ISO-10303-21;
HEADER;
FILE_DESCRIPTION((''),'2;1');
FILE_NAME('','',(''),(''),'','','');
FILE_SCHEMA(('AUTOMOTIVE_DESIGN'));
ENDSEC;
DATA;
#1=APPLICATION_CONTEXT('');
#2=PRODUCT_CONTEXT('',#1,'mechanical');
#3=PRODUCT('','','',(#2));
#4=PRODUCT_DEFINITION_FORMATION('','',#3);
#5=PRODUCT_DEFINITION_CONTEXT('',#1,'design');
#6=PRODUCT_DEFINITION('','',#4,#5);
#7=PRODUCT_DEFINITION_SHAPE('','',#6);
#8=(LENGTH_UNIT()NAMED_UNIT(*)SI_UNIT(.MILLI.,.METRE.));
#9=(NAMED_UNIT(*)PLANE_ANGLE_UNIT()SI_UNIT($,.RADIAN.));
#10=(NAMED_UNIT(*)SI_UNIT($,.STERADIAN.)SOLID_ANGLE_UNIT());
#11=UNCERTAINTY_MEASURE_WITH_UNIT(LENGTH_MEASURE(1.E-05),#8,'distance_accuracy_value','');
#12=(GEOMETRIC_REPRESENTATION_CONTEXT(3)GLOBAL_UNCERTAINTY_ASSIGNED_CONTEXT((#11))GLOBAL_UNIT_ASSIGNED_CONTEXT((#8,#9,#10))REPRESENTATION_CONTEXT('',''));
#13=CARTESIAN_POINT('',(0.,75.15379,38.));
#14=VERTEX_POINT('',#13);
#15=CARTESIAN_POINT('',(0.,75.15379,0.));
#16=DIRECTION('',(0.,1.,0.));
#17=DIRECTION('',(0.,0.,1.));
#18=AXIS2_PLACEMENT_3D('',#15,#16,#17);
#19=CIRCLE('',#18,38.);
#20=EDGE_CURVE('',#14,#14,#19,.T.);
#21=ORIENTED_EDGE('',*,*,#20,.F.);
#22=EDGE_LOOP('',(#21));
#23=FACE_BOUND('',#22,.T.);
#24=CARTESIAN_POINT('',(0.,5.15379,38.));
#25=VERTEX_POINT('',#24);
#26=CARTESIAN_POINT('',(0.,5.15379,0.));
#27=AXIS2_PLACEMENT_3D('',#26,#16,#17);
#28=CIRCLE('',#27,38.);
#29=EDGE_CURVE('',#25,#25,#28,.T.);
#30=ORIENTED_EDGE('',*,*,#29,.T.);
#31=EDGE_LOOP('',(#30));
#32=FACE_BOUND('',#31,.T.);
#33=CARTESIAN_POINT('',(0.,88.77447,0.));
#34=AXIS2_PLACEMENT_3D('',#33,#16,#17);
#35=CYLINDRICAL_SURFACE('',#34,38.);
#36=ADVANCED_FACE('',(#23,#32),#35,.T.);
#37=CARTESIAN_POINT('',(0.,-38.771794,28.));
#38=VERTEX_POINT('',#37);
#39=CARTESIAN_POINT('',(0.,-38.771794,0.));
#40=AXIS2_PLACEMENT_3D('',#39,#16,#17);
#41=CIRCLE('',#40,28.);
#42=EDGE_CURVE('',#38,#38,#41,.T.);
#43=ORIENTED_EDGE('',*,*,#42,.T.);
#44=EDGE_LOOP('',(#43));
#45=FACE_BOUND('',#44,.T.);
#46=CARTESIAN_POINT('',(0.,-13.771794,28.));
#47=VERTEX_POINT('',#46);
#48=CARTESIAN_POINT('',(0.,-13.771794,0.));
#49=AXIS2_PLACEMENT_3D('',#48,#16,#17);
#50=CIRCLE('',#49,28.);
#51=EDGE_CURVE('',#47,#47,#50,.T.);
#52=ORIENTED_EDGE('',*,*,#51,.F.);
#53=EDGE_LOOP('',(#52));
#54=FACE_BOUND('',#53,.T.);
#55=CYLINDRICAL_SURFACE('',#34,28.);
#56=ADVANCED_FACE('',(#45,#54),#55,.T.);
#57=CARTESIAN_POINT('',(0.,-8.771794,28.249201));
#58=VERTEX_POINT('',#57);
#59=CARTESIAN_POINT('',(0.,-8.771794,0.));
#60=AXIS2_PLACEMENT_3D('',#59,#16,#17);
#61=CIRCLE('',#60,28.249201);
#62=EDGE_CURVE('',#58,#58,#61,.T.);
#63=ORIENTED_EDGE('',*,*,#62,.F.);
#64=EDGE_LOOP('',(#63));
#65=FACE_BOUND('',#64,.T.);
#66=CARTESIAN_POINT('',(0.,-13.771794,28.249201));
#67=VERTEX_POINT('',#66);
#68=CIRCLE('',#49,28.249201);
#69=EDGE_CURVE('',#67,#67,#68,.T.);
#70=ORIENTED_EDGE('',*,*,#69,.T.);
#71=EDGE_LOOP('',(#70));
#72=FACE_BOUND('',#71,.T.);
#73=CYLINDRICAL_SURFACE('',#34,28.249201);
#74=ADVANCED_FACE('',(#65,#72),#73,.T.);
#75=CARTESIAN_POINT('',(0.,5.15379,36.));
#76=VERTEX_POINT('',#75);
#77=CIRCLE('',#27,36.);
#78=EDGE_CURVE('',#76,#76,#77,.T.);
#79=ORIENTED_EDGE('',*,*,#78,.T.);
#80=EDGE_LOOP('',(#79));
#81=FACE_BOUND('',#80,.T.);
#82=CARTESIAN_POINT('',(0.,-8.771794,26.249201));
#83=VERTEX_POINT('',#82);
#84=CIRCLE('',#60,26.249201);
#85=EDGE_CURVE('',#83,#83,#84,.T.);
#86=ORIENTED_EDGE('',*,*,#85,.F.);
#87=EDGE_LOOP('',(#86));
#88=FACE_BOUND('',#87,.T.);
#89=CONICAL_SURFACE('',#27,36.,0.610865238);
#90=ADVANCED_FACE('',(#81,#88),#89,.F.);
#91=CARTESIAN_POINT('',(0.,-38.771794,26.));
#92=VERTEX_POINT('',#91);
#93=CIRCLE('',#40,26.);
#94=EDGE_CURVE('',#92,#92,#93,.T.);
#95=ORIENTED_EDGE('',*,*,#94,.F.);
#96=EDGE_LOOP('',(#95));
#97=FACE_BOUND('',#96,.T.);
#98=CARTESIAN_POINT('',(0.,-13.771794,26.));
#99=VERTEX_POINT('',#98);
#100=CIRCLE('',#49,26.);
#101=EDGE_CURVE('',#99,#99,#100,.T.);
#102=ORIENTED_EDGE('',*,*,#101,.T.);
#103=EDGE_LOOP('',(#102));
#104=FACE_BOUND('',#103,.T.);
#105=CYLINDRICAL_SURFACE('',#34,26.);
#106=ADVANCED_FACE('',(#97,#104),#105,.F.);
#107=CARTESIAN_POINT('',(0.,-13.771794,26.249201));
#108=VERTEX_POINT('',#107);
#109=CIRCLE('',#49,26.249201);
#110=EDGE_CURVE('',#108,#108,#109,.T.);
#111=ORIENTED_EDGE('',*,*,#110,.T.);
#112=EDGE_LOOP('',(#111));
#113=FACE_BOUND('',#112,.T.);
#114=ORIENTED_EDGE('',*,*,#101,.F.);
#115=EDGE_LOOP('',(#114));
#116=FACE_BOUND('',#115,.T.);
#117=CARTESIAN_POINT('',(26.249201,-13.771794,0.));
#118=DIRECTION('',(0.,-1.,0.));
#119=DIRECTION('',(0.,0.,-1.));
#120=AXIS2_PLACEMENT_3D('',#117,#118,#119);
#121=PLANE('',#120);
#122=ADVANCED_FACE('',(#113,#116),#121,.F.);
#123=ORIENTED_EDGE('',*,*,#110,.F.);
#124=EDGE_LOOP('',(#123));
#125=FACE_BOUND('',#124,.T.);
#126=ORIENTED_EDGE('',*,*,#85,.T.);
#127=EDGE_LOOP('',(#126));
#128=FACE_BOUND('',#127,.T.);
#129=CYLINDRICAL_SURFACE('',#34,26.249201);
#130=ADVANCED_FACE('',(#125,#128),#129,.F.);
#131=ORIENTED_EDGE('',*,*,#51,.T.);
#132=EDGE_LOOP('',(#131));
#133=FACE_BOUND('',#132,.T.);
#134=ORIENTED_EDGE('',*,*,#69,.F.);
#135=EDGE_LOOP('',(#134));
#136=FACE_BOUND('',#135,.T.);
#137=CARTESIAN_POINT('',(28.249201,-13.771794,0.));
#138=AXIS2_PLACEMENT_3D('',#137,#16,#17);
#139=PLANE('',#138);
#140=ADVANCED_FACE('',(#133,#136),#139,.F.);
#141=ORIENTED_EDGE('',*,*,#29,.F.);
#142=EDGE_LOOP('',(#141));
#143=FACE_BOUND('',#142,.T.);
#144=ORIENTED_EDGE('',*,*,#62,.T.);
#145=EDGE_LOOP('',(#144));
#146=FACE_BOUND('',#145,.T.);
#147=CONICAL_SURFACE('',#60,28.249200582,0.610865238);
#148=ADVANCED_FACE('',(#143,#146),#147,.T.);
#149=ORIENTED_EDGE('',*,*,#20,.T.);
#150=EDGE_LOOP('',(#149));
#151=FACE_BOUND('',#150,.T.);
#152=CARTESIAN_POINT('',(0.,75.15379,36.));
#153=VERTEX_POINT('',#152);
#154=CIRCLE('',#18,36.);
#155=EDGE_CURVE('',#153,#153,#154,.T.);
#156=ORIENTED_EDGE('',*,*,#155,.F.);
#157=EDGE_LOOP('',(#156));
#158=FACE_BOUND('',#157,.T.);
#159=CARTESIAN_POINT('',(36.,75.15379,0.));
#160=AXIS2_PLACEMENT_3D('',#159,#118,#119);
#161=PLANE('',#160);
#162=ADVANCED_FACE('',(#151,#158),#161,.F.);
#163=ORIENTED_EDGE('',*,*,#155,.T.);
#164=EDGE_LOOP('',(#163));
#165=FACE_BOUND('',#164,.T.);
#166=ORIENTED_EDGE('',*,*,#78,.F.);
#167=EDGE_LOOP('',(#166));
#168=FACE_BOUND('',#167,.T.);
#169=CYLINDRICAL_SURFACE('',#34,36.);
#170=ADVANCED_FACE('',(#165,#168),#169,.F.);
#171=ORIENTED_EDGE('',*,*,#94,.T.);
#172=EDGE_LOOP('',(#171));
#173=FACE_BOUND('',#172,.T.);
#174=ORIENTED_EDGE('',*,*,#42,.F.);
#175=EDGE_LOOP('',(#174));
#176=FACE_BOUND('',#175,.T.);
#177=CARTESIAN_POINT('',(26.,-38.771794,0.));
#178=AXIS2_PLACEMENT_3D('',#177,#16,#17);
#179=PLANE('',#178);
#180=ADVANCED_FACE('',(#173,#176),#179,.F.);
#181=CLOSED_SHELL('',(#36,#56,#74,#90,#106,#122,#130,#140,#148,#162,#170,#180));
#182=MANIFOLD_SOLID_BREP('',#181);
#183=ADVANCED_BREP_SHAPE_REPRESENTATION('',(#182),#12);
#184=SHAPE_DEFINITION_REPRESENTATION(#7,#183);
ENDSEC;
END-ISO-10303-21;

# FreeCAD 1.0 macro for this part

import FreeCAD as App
import Part
import Sketcher

V = App.Vector
Q = App.Units.Quantity


def add_polygon(sketch, points):
    """Adds a closed chain of lines whose ends are joined by coincident constraints."""
    first, n = sketch.GeometryCount, len(points)
    for a, b in zip(points, points[1:] + points[:1]):
        sketch.addGeometry(Part.LineSegment(App.Vector(*a, 0), App.Vector(*b, 0)), False)
    for i in range(n):
        sketch.addConstraint(Sketcher.Constraint("Coincident", first + i, 2, first + (i + 1) % n, 1))

doc = App.newDocument("Part")
params = doc.addObject("Spreadsheet::Sheet", "Params")
for row, (alias, value) in enumerate([
    ("sketch1_width", "2 mm"),
    ("sketch1_height", "70 mm"),
    ("sketch1_height2", "5 mm"),
    ("sketch1_height3", "25 mm"),
    ("sketch1_length", "17 mm"),
    ("revolution_angle", "360 deg"),
], start=1):
    params.set(f"A{row}", alias)
    params.set(f"B{row}", "=" + value)
    params.setAlias(f"B{row}", alias)

body = doc.addObject("PartDesign::Body", "Body")

# Sketch on XY plane
sketch1 = doc.addObject("Sketcher::SketchObject", "Sketch")
body.addObject(sketch1)
sketch1.AttachmentSupport = (doc.XY_Plane, [""])
sketch1.MapMode = "FlatFace"
add_polygon(sketch1, [(36, 75.15379), (36, 5.15379), (26.249201, -8.771794), (26.249201, -13.771794), (26, -13.771794), (26, -38.771794), (28, -38.771794), (28, -13.771794), (28.249201, -13.771794), (28.249201, -8.771794), (38, 5.15379), (38, 75.15379)])  # lines 0-11
sketch1.addConstraint(Sketcher.Constraint("Vertical", 0))
sketch1.addConstraint(Sketcher.Constraint("Vertical", 2))
sketch1.addConstraint(Sketcher.Constraint("Horizontal", 3))
sketch1.addConstraint(Sketcher.Constraint("Vertical", 4))
sketch1.addConstraint(Sketcher.Constraint("Horizontal", 5))
sketch1.addConstraint(Sketcher.Constraint("Vertical", 6))
sketch1.addConstraint(Sketcher.Constraint("Horizontal", 7))
sketch1.addConstraint(Sketcher.Constraint("Vertical", 8))
sketch1.addConstraint(Sketcher.Constraint("Vertical", 10))
sketch1.addConstraint(Sketcher.Constraint("Horizontal", 11))
sketch1.addConstraint(Sketcher.Constraint("Parallel", 1, 9))
sketch1.addConstraint(Sketcher.Constraint("Horizontal", 3, 2, 6, 2))
sketch1.addConstraint(Sketcher.Constraint("Horizontal", 1, 2, 8, 2))
sketch1.addConstraint(Sketcher.Constraint("Horizontal", 0, 2, 9, 2))
sketch1.addConstraint(Sketcher.Constraint("Equal", 3, 7))
sketch1.addConstraint(Sketcher.Constraint("DistanceX", 5, 1, 5, 2, Q("2 mm")))
sketch1.addConstraint(Sketcher.Constraint("DistanceY", 0, 2, 0, 1, Q("70 mm")))
sketch1.addConstraint(Sketcher.Constraint("DistanceY", 2, 2, 2, 1, Q("5 mm")))
sketch1.addConstraint(Sketcher.Constraint("DistanceY", 4, 2, 4, 1, Q("25 mm")))
sketch1.addConstraint(Sketcher.Constraint("Angle", 1, Q("-125 deg")))
sketch1.addConstraint(Sketcher.Constraint("Distance", 1, Q("17 mm")))
sketch1.addConstraint(Sketcher.Constraint("DistanceX", -1, 1, 0, 2, Q("36 mm")))
sketch1.addConstraint(Sketcher.Constraint("DistanceX", -1, 1, 3, 2, Q("26 mm")))
sketch1.addConstraint(Sketcher.Constraint("DistanceY", -1, 1, 0, 2, Q("5.15379 mm")))
sketch1.setExpression("Constraints[27]", "Params.sketch1_width")
sketch1.setExpression("Constraints[28]", "Params.sketch1_height")
sketch1.setExpression("Constraints[29]", "Params.sketch1_height2")
sketch1.setExpression("Constraints[30]", "Params.sketch1_height3")
sketch1.setExpression("Constraints[32]", "Params.sketch1_length")
revolution = doc.addObject("PartDesign::Revolution", "Revolution")
body.addObject(revolution)
revolution.Profile = sketch1
revolution.ReferenceAxis = (sketch1, ["V_Axis"])
revolution.setExpression("Angle", "Params.revolution_angle")

doc.recompute()
